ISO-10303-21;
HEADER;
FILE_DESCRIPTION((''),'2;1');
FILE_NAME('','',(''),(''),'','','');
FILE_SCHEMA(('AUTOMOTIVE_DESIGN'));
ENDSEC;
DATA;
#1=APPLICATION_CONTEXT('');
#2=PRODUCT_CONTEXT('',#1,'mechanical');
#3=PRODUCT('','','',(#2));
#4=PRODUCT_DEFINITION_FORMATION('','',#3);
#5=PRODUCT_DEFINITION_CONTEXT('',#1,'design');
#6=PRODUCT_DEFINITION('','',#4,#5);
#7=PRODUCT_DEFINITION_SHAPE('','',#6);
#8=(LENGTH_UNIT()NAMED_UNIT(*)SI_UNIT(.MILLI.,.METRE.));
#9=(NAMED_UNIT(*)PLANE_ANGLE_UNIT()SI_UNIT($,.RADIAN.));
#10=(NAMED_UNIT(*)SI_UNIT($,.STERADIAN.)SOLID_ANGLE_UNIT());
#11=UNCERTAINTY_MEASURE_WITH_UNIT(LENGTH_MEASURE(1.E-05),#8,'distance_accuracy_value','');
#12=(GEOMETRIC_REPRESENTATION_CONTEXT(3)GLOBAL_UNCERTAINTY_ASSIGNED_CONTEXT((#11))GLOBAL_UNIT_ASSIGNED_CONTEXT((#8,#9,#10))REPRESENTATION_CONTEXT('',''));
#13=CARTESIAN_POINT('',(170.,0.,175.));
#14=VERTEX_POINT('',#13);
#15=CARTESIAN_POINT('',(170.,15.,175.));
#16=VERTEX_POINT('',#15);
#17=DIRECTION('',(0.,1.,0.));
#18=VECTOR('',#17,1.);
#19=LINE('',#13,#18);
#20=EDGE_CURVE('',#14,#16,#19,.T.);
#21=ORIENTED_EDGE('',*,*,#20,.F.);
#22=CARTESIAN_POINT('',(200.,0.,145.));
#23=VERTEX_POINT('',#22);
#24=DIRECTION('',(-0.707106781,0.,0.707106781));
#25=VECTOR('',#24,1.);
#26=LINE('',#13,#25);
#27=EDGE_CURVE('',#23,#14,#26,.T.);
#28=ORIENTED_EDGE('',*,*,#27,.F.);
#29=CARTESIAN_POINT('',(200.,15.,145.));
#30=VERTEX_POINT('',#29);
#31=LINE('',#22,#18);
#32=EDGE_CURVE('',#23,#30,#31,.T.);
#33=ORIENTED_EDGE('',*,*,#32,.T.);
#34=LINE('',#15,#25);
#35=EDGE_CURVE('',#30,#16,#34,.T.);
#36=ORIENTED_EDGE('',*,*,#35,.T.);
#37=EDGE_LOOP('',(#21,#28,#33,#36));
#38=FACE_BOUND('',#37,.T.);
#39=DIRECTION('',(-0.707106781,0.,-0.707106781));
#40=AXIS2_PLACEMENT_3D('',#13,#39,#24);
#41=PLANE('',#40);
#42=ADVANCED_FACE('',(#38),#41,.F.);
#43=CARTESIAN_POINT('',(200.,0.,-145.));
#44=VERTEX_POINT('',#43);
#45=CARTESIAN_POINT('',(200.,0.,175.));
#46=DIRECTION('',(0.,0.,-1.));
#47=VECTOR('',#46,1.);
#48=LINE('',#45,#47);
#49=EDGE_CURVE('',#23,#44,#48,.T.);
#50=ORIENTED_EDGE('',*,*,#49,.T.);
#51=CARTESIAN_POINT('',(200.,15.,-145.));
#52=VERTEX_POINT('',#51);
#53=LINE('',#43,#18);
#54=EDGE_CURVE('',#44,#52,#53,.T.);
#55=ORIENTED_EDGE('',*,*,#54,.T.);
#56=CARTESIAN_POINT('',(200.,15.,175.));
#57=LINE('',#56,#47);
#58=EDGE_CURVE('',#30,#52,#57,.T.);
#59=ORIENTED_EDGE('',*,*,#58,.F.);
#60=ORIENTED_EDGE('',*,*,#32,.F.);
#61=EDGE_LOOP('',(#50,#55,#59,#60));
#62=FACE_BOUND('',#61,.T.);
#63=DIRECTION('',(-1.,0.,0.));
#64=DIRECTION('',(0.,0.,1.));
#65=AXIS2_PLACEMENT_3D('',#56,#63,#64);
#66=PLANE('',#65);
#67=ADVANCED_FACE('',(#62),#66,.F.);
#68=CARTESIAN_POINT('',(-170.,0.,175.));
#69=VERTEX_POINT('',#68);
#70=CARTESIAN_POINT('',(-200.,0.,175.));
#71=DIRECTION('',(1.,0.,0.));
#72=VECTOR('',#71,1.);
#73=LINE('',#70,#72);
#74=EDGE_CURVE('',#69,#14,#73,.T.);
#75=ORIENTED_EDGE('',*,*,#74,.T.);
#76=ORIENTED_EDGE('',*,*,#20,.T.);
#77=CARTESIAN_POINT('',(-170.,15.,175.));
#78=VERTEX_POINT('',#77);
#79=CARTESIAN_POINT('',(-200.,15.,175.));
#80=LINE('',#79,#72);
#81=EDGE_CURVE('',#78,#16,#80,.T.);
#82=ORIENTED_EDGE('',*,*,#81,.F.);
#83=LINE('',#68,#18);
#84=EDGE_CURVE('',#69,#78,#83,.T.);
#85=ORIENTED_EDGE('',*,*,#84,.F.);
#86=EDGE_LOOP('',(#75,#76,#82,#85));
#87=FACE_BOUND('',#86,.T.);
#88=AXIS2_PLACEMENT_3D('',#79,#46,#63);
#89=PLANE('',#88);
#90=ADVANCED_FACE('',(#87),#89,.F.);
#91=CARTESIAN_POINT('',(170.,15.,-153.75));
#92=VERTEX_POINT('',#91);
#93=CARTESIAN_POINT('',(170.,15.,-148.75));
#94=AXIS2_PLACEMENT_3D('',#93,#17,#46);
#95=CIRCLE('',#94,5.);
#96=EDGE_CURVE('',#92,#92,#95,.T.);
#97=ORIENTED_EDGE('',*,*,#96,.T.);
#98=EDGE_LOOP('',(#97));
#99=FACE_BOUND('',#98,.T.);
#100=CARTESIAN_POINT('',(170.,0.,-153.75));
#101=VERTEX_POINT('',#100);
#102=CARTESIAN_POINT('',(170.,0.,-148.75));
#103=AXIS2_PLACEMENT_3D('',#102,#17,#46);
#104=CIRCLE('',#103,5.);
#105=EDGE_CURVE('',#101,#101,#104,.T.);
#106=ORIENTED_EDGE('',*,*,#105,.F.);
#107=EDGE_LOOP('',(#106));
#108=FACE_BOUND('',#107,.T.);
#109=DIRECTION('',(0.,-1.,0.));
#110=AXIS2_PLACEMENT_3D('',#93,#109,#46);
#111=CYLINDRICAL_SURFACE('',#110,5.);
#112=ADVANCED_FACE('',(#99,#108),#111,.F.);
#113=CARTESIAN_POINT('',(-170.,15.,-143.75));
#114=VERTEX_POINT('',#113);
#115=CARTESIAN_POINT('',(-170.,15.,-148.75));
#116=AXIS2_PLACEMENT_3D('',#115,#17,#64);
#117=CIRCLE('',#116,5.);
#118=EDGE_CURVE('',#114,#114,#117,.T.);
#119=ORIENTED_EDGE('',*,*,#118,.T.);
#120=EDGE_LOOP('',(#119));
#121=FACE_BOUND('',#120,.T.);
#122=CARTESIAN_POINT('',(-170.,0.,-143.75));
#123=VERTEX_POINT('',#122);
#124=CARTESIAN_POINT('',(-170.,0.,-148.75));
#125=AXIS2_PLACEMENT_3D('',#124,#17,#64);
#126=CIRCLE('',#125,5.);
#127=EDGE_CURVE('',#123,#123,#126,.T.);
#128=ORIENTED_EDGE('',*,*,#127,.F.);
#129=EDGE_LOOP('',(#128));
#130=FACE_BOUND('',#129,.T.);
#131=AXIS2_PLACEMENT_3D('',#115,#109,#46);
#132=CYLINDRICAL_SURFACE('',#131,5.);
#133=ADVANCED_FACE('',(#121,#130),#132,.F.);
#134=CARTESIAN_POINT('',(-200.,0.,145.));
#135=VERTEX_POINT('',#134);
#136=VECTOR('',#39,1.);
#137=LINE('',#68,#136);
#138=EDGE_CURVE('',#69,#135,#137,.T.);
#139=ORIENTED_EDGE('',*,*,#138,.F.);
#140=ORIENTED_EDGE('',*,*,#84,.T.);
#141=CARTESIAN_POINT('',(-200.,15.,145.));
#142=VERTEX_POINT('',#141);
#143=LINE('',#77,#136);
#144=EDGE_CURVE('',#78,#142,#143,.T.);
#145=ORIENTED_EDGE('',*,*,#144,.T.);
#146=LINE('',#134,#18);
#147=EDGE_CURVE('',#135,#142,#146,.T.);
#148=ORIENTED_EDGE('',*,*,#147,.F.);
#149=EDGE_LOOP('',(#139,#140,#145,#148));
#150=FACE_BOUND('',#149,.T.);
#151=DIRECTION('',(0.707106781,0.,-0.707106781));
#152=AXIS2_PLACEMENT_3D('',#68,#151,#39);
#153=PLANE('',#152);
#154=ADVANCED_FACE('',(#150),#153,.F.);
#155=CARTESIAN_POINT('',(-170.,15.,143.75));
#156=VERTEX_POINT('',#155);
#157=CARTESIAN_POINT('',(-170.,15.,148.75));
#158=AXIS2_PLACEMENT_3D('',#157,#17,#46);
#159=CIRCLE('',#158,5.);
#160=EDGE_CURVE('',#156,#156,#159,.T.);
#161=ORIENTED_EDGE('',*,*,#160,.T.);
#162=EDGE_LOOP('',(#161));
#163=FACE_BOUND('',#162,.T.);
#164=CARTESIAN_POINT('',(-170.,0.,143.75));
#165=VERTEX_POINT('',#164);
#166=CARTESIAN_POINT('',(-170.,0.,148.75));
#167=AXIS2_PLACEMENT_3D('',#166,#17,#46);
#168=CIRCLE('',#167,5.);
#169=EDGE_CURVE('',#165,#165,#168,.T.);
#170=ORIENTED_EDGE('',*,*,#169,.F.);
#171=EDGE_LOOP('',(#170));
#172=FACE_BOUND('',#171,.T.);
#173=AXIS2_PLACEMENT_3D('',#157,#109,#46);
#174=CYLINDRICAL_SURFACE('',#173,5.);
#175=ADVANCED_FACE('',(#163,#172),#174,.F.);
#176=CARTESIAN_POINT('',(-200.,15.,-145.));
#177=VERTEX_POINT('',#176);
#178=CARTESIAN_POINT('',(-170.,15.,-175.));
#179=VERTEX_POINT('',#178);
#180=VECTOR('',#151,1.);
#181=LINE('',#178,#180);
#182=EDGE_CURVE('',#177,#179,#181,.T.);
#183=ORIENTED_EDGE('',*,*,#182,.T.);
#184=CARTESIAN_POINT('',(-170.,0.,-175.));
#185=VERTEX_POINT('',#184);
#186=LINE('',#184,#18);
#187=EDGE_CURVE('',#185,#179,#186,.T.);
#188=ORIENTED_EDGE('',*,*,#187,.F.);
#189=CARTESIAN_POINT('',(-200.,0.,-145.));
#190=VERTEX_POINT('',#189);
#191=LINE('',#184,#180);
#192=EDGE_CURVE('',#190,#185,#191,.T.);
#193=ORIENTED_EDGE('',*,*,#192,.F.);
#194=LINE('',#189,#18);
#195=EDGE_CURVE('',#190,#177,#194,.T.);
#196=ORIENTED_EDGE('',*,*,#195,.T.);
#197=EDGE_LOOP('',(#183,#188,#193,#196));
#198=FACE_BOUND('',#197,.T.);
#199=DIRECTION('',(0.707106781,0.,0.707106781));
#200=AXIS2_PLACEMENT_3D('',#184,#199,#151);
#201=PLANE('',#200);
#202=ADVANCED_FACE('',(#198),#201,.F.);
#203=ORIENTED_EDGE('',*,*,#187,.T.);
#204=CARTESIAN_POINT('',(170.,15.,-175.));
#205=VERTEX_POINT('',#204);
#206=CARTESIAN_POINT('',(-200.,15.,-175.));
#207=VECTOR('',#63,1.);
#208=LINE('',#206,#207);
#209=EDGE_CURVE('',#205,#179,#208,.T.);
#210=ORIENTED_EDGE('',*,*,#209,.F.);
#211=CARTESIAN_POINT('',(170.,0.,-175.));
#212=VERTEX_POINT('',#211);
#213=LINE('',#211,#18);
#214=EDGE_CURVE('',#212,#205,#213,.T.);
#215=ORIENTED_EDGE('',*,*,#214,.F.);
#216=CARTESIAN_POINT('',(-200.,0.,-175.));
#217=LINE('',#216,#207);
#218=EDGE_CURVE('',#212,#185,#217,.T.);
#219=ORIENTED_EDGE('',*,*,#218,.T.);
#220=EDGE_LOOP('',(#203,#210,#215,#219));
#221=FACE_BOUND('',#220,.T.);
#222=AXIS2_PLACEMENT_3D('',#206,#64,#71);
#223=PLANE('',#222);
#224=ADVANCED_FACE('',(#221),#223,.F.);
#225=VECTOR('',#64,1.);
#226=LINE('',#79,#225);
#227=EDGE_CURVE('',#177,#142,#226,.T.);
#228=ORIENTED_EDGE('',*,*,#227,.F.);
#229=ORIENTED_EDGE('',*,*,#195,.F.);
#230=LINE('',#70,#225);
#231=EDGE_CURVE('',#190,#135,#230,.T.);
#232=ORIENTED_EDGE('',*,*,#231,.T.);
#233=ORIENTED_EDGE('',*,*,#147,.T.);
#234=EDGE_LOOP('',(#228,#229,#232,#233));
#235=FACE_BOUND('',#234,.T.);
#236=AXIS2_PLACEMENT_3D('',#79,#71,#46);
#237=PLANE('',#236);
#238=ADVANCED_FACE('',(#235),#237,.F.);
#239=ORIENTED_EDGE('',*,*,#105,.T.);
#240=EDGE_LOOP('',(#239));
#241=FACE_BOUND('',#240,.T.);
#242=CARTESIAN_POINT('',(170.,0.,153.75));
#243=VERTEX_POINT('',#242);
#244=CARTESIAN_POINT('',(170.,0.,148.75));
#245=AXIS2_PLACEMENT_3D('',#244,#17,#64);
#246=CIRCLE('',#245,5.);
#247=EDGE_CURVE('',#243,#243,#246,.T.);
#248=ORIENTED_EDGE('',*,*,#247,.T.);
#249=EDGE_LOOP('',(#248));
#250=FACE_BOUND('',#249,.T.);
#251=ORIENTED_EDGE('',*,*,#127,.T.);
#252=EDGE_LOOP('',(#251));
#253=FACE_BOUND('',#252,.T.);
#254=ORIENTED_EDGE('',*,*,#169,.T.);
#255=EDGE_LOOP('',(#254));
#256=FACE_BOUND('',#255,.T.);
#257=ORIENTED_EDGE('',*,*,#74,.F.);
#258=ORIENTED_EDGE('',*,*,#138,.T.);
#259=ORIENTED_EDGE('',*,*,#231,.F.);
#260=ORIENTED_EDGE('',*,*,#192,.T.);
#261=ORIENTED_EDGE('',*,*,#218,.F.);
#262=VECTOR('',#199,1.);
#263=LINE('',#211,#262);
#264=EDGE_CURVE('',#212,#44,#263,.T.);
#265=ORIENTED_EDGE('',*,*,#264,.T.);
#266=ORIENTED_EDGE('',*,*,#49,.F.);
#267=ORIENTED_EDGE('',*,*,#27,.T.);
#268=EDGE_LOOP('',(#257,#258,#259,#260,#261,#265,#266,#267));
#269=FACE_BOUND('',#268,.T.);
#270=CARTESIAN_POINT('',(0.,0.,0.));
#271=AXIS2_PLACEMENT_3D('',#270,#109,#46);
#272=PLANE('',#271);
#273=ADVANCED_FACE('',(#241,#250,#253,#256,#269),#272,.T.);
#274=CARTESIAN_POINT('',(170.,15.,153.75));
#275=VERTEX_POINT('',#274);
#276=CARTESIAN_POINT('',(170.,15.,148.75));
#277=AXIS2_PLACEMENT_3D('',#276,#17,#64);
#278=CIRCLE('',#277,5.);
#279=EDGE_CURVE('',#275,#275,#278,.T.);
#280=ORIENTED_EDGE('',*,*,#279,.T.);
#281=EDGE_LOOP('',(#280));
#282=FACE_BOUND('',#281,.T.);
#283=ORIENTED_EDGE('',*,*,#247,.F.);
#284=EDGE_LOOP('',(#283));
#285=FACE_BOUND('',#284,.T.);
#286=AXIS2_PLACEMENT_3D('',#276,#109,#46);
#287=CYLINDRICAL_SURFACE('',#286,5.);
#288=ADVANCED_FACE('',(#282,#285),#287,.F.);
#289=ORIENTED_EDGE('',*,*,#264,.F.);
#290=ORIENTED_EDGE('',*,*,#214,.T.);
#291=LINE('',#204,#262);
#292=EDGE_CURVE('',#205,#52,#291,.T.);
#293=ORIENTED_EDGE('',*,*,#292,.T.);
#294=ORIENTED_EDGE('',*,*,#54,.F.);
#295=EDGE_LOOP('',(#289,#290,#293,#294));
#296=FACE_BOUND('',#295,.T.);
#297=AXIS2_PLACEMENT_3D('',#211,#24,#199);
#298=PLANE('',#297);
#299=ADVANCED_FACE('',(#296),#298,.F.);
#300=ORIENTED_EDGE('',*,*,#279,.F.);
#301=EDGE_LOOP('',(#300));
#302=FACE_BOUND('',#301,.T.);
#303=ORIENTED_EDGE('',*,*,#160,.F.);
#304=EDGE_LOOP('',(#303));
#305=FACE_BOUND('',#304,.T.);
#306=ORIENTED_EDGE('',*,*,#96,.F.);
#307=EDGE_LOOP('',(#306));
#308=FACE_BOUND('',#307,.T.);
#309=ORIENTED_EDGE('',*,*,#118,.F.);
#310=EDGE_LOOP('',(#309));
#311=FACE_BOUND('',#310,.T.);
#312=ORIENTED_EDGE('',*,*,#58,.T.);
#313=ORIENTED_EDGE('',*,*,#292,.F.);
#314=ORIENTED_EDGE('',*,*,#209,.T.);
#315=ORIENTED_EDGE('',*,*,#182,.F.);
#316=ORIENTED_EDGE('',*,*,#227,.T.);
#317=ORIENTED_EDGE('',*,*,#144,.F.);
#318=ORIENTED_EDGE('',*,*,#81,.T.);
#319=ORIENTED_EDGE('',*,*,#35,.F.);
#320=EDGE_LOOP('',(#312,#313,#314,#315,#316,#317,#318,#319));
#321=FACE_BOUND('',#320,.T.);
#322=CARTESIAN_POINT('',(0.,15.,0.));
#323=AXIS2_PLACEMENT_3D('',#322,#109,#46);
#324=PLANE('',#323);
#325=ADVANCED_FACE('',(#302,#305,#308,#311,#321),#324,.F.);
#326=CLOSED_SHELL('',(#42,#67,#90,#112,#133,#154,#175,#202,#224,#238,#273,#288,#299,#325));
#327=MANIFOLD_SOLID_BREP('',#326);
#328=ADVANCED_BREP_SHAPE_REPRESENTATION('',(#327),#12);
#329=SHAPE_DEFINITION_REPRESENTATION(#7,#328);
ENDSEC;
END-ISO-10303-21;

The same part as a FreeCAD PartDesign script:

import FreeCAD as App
import Part
import Sketcher
Q = App.Units.Quantity


def add_polygon(sketch, points):
    """Adds a closed chain of lines whose ends are joined by coincident constraints."""
    first, n = sketch.GeometryCount, len(points)
    for a, b in zip(points, points[1:] + points[:1]):
        sketch.addGeometry(Part.LineSegment(App.Vector(*a, 0), App.Vector(*b, 0)), False)
    for i in range(n):
        sketch.addConstraint(Sketcher.Constraint("Coincident", first + i, 2, first + (i + 1) % n, 1))

doc = App.newDocument("Part")
body = doc.addObject("PartDesign::Body", "Body")

# Sketch on XZ plane
sketch1 = body.newObject("Sketcher::SketchObject", "Sketch")
sketch1.AttachmentSupport = (doc.getObject("XZ_Plane"), [""])
sketch1.MapMode = "FlatFace"
add_polygon(sketch1, [(-200, -175), (-200, 175), (200, 175), (200, -175)])  # lines 0-3
sketch1.addGeometry(Part.Circle(App.Vector(-170, 149, 0), App.Vector(0, 0, 1), 5), False)  # 4
sketch1.addGeometry(Part.Circle(App.Vector(170, 149, 0), App.Vector(0, 0, 1), 5), False)  # 5
sketch1.addGeometry(Part.Circle(App.Vector(-170, -149, 0), App.Vector(0, 0, 1), 5), False)  # 6
sketch1.addGeometry(Part.Circle(App.Vector(170, -149, 0), App.Vector(0, 0, 1), 5), False)  # 7
sketch1.addConstraint(Sketcher.Constraint("Vertical", 0))
sketch1.addConstraint(Sketcher.Constraint("Horizontal", 1))
sketch1.addConstraint(Sketcher.Constraint("Vertical", 2))
sketch1.addConstraint(Sketcher.Constraint("Horizontal", 3))
sketch1.addConstraint(Sketcher.Constraint("Equal", 4, 5))
sketch1.addConstraint(Sketcher.Constraint("Equal", 5, 6))
sketch1.addConstraint(Sketcher.Constraint("Equal", 6, 7))
sketch1.addConstraint(Sketcher.Constraint("Symmetric", 5, 3, 6, 3, -1, 1))
sketch1.addConstraint(Sketcher.Constraint("Symmetric", 4, 3, 7, 3, -1, 1))
sketch1.addConstraint(Sketcher.Constraint("Symmetric", 0, 2, 2, 2, -1, 1))
sketch1.addConstraint(Sketcher.Constraint("Symmetric", 4, 3, 5, 3, -2))
sketch1.addConstraint(Sketcher.Constraint("Diameter", 4, Q("10 mm")))
sketch1.addConstraint(Sketcher.Constraint("DistanceX", 1, 1, 1, 2, Q("400 mm")))
sketch1.addConstraint(Sketcher.Constraint("DistanceY", 0, 1, 0, 2, Q("350 mm")))
sketch1.addConstraint(Sketcher.Constraint("DistanceX", 4, 3, -1, 1, Q("170 mm")))
sketch1.addConstraint(Sketcher.Constraint("DistanceY", 6, 3, 4, 3, Q("297.5 mm")))
pad1 = body.newObject("PartDesign::Pad", "Pad")
pad1.Profile = sketch1
pad1.Length = 15
pad1.Reversed = True

# Sketch on XZ plane
sketch2 = body.newObject("Sketcher::SketchObject", "Sketch001")
sketch2.AttachmentSupport = (doc.getObject("XZ_Plane"), [""])
sketch2.MapMode = "FlatFace"
sketch2.AttachmentOffset = App.Placement(App.Vector(0, 0, -15), App.Rotation())
add_polygon(sketch2, [(-200, -145), (-170, -175), (-200, -175)])  # lines 0-2
add_polygon(sketch2, [(170, -175), (200, -145), (200, -175)])  # lines 3-5
add_polygon(sketch2, [(170, 175), (200, 175), (200, 145)])  # lines 6-8
add_polygon(sketch2, [(-170, 175), (-200, 145), (-200, 175)])  # lines 9-11
sketch2.addConstraint(Sketcher.Constraint("Horizontal", 1))
sketch2.addConstraint(Sketcher.Constraint("Vertical", 2))
sketch2.addConstraint(Sketcher.Constraint("Vertical", 4))
sketch2.addConstraint(Sketcher.Constraint("Horizontal", 5))
sketch2.addConstraint(Sketcher.Constraint("Horizontal", 6))
sketch2.addConstraint(Sketcher.Constraint("Vertical", 7))
sketch2.addConstraint(Sketcher.Constraint("Vertical", 10))
sketch2.addConstraint(Sketcher.Constraint("Horizontal", 11))
sketch2.addConstraint(Sketcher.Constraint("Symmetric", 1, 2, 6, 2, -1, 1))
sketch2.addConstraint(Sketcher.Constraint("Symmetric", 3, 2, 9, 2, -1, 1))
sketch2.addConstraint(Sketcher.Constraint("Symmetric", 5, 2, 11, 2, -1, 1))
sketch2.addConstraint(Sketcher.Constraint("Symmetric", 2, 2, 3, 2, -2))
sketch2.addConstraint(Sketcher.Constraint("Symmetric", 0, 2, 5, 2, -2))
sketch2.addConstraint(Sketcher.Constraint("Perpendicular", 0, 3))
sketch2.addConstraint(Sketcher.Constraint("Perpendicular", 3, 8))
sketch2.addConstraint(Sketcher.Constraint("Horizontal", 7, 2, 9, 2))
sketch2.addConstraint(Sketcher.Constraint("DistanceX", 1, 2, 1, 1, Q("30 mm")))
sketch2.addConstraint(Sketcher.Constraint("DistanceX", 0, 2, -1, 1, Q("170 mm")))
sketch2.addConstraint(Sketcher.Constraint("DistanceY", 0, 2, -1, 1, Q("175 mm")))
pocket1 = body.newObject("PartDesign::Pocket", "Pocket")
pocket1.Profile = sketch2
pocket1.Type = "ThroughAll"
pocket1.Reversed = True

doc.recompute()
